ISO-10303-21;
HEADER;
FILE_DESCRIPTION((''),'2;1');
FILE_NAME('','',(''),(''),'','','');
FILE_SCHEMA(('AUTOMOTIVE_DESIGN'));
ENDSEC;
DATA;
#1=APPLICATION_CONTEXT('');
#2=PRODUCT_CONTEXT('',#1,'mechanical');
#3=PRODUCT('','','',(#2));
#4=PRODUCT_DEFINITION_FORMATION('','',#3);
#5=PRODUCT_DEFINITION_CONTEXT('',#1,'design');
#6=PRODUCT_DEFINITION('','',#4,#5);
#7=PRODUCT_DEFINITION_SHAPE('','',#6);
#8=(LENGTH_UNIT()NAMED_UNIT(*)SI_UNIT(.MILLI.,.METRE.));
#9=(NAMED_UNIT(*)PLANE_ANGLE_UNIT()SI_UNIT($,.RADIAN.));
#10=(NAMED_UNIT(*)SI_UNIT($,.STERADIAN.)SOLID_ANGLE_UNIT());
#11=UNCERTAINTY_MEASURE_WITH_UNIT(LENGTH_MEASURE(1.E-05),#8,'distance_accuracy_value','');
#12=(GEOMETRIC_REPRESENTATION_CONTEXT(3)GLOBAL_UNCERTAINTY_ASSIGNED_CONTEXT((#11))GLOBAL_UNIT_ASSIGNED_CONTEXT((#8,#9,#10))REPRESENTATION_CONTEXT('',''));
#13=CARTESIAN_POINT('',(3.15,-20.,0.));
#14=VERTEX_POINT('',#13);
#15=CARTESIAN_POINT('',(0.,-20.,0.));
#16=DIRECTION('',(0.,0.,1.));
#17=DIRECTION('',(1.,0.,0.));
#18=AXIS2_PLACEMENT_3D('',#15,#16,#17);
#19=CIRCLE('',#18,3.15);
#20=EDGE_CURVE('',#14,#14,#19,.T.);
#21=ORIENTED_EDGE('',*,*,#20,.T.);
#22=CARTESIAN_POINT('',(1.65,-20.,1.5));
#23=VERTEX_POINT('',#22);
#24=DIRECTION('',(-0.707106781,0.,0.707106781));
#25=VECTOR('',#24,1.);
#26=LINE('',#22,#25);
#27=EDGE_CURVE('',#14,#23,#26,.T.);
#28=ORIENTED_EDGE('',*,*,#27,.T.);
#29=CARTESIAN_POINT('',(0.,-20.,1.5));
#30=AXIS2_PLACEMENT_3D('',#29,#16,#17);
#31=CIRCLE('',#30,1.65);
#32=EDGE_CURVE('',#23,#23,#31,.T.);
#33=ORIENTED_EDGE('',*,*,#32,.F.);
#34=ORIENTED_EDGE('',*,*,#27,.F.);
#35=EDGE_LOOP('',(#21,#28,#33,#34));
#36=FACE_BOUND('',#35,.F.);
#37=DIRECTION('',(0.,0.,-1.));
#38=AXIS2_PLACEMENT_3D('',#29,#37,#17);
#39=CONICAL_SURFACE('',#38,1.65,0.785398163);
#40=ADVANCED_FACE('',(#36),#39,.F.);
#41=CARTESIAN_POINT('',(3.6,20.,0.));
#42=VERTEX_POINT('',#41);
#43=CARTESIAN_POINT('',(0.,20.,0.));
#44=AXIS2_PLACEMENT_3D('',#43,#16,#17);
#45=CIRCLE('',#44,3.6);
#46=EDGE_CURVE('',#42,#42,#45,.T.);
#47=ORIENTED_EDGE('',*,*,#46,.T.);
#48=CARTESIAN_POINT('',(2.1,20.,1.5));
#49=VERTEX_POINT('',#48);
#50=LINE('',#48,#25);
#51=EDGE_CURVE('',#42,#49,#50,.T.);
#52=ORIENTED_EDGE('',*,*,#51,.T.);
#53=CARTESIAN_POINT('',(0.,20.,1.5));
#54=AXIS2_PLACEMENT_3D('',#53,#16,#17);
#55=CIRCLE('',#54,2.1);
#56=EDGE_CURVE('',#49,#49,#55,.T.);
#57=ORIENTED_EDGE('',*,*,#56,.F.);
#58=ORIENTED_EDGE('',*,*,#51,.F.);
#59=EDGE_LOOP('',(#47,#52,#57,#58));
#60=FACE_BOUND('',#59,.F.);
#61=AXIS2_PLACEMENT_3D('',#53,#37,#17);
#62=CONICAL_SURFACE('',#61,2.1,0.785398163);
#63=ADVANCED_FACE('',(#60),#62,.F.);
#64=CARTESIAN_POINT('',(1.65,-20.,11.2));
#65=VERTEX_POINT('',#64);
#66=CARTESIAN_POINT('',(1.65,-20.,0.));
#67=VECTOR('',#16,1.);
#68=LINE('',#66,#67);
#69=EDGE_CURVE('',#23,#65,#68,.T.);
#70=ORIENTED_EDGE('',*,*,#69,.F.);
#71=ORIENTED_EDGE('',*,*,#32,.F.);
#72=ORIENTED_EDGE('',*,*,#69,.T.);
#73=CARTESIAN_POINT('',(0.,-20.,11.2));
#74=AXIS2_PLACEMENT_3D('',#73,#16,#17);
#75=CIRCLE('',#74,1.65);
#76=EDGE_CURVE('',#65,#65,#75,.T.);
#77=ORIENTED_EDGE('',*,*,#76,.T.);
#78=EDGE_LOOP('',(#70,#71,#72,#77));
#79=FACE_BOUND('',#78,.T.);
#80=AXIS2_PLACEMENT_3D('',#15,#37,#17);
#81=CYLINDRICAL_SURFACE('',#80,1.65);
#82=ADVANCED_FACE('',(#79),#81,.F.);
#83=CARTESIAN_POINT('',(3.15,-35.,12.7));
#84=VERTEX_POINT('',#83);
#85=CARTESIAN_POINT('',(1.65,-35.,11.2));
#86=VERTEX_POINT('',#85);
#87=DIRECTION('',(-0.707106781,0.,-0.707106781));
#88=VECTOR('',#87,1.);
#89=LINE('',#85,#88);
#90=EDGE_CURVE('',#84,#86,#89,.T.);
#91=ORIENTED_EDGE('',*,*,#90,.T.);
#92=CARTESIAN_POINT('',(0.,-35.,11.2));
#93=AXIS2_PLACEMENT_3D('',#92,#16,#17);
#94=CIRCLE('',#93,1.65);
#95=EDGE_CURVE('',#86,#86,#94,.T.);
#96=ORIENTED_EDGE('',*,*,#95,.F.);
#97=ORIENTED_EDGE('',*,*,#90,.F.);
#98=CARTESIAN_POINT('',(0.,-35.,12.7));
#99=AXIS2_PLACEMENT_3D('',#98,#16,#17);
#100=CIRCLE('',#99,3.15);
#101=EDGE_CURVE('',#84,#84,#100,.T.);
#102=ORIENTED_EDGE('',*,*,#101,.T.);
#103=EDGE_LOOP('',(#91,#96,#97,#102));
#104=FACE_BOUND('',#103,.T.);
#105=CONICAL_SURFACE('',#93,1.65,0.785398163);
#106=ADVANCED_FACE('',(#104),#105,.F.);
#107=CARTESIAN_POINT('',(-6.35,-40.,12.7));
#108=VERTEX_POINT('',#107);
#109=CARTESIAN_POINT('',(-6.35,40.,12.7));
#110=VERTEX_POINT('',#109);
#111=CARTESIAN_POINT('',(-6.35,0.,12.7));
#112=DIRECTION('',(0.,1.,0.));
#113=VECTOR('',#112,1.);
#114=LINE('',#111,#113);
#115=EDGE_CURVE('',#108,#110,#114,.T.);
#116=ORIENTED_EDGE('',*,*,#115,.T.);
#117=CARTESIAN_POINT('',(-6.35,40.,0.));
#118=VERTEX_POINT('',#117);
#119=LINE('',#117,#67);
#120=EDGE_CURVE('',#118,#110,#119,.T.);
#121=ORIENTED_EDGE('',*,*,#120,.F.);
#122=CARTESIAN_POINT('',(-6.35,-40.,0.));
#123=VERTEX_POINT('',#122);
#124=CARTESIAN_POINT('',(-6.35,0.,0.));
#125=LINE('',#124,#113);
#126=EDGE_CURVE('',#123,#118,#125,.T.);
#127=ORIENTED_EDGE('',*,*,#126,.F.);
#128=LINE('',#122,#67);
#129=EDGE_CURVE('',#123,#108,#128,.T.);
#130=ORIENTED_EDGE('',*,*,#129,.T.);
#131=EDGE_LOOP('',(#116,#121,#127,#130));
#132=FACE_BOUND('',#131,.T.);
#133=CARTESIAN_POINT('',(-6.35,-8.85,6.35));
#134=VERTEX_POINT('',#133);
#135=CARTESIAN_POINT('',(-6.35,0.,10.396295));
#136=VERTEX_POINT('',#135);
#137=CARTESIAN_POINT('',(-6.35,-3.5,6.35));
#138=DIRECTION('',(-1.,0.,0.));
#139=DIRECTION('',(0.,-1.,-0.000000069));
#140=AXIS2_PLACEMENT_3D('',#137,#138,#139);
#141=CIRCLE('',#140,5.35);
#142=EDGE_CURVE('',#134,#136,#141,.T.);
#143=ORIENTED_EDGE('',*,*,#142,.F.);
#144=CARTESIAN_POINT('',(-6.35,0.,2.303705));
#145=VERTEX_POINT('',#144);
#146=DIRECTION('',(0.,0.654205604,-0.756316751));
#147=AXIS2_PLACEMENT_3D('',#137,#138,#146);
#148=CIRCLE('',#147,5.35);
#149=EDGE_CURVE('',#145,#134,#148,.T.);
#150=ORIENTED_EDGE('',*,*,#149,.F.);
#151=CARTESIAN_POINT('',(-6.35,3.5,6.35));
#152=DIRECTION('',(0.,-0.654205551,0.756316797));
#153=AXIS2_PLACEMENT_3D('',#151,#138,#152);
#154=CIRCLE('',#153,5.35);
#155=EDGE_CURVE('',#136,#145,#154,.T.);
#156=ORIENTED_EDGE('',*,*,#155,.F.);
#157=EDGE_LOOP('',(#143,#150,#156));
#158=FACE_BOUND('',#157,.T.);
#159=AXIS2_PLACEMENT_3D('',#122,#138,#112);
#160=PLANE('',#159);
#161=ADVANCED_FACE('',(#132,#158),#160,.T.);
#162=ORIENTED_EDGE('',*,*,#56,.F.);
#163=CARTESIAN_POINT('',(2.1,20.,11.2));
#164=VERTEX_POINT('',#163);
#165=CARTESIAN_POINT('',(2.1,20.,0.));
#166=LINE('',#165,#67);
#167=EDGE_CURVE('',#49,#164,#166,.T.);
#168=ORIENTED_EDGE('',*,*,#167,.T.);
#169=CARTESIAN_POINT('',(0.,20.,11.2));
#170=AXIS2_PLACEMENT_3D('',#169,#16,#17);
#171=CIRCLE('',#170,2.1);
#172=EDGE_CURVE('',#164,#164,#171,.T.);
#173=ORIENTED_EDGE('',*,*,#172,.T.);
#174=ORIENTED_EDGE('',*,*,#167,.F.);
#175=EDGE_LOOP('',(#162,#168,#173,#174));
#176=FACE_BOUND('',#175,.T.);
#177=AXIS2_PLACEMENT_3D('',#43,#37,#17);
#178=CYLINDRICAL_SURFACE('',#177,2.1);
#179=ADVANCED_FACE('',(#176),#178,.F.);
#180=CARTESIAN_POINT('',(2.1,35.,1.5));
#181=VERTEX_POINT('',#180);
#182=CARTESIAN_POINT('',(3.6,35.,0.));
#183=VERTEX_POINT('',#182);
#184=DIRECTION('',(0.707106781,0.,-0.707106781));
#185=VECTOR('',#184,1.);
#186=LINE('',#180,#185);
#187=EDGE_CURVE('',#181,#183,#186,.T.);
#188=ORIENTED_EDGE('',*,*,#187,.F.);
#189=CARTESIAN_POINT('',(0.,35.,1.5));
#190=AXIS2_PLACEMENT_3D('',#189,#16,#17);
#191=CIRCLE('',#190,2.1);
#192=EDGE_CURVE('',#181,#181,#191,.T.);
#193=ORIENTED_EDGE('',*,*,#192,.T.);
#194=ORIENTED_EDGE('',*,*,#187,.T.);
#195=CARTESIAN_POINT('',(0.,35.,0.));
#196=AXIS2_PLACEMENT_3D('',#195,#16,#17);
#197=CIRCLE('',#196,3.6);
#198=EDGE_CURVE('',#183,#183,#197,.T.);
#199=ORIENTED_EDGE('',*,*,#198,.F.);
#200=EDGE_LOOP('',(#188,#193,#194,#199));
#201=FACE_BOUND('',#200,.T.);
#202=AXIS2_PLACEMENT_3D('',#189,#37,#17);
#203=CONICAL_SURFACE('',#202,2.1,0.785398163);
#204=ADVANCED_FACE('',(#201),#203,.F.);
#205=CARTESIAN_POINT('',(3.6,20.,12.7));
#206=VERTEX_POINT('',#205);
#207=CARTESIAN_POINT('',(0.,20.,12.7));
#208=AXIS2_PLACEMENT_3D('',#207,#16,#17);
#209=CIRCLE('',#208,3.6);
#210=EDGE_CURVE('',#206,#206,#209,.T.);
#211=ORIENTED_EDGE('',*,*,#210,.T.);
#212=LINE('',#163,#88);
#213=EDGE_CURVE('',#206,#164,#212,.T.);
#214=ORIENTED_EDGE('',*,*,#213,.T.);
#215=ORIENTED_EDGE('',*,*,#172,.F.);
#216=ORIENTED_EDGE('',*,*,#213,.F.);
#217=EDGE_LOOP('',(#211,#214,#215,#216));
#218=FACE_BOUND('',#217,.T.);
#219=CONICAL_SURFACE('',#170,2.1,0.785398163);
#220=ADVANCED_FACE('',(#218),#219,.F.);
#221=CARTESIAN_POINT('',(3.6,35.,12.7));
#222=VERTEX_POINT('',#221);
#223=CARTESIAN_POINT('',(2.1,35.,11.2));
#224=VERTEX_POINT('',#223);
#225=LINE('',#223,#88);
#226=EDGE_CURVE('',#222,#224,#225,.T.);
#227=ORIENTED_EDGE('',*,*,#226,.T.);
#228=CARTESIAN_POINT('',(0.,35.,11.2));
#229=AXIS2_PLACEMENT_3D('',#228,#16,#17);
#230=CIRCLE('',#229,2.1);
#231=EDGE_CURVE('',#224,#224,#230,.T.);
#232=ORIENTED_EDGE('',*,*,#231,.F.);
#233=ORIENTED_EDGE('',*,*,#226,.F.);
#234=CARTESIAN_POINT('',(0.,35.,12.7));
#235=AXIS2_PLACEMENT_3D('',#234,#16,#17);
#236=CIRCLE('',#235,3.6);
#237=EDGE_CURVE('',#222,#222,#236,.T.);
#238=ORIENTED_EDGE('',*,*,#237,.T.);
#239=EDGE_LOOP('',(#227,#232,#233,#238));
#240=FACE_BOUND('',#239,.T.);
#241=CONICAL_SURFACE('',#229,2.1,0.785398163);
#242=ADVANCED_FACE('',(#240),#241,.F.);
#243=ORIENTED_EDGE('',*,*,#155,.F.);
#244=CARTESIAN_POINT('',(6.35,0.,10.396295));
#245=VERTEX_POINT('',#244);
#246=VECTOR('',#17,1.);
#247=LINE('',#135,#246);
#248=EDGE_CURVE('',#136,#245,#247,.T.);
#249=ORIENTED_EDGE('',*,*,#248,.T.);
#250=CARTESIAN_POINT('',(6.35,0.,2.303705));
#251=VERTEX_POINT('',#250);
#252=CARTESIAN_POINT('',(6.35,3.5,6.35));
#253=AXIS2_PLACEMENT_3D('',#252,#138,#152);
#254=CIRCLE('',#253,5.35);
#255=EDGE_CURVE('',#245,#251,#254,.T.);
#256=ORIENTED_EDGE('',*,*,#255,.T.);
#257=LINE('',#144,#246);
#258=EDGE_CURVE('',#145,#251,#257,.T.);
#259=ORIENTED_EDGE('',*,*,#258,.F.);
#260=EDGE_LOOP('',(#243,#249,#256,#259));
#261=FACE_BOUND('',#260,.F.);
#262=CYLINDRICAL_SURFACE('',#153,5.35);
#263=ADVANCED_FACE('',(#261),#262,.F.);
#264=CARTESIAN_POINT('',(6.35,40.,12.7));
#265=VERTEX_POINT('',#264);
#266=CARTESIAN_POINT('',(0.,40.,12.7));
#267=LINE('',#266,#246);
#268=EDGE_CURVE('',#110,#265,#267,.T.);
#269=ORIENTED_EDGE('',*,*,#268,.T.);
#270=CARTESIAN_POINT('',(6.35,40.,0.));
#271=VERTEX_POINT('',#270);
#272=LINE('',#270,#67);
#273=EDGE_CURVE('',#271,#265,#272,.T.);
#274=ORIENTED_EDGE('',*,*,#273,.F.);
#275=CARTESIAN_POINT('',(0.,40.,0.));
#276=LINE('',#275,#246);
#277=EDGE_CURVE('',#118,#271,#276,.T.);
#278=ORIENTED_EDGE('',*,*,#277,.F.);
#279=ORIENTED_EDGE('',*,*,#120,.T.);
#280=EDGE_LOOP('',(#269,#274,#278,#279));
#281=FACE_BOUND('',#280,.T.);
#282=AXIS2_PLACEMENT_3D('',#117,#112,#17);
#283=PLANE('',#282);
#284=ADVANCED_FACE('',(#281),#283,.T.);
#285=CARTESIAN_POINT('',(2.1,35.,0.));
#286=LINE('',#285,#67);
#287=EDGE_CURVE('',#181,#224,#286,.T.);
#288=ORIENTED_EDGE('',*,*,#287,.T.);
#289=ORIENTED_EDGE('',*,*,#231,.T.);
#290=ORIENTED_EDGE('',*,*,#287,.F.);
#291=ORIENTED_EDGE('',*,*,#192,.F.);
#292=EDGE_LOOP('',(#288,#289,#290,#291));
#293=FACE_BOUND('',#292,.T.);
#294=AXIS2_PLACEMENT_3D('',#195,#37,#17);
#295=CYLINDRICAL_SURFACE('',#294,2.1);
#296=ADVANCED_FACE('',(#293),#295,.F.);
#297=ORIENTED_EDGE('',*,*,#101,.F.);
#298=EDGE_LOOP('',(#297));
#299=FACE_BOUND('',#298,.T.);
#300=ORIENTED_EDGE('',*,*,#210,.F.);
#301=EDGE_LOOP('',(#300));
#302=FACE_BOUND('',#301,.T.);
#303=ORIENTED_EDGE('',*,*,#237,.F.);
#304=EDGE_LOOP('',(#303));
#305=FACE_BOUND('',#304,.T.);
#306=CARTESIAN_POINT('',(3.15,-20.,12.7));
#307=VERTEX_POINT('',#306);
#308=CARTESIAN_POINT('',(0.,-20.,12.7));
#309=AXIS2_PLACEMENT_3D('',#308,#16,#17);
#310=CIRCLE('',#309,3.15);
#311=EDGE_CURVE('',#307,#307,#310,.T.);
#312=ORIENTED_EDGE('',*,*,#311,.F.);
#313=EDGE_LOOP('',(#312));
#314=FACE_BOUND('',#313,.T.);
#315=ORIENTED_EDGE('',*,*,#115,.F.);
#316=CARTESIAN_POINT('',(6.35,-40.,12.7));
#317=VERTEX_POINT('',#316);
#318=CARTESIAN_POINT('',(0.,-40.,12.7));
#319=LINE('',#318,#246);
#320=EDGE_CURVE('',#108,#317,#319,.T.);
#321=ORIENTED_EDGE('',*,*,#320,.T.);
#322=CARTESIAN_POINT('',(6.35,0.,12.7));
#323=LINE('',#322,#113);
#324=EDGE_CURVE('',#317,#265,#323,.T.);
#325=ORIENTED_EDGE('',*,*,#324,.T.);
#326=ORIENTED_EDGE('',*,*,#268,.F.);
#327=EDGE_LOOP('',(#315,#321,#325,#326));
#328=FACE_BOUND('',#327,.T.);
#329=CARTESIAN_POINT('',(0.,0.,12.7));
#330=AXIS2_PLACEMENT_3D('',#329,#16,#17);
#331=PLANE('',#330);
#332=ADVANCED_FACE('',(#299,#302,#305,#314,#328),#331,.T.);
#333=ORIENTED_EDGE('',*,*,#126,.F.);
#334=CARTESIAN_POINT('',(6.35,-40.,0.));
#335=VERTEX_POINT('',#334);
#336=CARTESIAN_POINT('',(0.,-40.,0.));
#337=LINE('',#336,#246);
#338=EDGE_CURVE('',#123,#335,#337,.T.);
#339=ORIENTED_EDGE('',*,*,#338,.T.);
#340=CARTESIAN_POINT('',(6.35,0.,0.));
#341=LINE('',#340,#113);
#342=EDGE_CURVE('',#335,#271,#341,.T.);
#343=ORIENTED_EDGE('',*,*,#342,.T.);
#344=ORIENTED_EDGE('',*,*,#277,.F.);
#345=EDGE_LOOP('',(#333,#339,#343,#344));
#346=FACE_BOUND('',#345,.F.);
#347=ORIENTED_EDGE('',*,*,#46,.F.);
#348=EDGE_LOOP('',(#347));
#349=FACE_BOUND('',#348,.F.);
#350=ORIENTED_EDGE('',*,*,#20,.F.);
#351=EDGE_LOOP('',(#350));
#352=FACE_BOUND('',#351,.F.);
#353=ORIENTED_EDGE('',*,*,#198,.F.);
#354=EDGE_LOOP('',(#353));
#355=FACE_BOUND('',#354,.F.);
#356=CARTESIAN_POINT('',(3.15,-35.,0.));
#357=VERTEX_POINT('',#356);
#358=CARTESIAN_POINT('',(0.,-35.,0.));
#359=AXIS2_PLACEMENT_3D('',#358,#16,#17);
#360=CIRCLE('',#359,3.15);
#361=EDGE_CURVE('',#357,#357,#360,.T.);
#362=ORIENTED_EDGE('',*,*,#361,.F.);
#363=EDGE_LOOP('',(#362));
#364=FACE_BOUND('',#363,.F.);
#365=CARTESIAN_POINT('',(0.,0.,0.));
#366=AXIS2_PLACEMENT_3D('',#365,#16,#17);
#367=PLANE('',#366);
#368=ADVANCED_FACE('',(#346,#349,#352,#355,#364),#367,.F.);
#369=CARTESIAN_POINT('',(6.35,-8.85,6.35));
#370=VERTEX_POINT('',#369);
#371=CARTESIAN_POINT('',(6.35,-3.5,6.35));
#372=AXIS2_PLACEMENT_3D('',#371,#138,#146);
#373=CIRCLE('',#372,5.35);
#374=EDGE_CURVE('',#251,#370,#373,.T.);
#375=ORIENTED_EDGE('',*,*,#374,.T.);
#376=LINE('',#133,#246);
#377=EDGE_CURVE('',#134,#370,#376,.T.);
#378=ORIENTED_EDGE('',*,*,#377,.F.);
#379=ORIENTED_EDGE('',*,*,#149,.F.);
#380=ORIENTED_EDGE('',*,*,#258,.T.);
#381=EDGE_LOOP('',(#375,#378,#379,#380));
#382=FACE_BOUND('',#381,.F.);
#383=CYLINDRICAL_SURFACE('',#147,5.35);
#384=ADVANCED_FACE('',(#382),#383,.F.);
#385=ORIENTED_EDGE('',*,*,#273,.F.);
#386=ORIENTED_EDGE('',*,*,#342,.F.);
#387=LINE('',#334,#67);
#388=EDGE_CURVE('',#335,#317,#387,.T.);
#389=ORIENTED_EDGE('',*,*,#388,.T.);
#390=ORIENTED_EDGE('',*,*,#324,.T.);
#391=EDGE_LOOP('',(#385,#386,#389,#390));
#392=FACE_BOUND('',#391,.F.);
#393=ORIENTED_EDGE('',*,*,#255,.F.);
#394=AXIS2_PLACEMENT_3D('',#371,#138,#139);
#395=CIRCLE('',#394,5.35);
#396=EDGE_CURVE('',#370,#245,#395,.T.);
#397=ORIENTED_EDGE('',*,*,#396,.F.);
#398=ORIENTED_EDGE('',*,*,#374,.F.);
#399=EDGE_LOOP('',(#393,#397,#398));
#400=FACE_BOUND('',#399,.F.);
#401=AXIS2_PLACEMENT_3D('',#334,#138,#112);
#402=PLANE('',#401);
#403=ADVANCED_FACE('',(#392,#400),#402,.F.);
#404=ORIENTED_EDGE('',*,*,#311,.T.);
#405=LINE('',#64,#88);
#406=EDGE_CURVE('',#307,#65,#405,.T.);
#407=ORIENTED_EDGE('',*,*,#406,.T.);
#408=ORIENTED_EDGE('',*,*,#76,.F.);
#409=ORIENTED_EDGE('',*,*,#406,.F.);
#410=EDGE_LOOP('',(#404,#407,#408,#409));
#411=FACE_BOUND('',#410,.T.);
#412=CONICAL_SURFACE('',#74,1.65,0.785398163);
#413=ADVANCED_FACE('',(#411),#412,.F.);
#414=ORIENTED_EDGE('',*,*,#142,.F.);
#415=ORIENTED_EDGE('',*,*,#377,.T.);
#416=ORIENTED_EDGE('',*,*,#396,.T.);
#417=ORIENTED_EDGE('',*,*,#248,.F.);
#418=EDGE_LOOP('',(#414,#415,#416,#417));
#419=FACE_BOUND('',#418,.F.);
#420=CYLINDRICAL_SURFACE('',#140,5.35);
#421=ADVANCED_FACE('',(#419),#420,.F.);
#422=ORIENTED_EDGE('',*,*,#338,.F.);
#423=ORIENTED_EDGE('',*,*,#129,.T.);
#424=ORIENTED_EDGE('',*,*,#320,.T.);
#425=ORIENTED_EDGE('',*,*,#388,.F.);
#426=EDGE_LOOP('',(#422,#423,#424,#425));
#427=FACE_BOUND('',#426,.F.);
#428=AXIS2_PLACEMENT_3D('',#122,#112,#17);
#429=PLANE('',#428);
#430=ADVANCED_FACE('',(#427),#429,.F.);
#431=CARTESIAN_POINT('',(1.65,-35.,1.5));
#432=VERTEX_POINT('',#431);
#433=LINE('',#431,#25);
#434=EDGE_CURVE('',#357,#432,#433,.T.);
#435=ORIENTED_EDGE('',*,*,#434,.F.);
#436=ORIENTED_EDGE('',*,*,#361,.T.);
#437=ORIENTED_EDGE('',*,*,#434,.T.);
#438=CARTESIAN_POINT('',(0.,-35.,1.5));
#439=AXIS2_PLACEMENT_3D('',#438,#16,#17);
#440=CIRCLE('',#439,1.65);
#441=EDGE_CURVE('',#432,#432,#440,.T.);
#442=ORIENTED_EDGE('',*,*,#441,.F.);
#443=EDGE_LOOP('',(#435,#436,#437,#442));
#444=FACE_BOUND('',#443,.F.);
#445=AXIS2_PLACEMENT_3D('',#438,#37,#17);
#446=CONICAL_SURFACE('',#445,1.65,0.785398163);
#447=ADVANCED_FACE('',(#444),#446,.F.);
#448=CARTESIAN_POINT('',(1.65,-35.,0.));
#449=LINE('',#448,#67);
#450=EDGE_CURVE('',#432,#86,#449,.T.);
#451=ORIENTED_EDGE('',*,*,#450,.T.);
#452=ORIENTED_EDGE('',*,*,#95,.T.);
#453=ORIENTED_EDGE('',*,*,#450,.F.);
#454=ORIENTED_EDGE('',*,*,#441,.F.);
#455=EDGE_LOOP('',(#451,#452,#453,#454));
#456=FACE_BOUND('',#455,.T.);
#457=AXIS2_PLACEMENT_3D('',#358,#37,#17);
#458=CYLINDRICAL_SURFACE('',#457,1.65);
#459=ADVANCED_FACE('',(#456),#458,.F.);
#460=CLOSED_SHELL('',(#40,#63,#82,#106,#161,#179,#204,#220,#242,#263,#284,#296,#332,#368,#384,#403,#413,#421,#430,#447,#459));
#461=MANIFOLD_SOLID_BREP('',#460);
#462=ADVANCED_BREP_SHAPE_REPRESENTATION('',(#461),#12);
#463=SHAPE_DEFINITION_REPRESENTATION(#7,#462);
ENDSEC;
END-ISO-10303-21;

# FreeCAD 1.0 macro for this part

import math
import FreeCAD as App
import Part
import Sketcher

V = App.Vector
Q = App.Units.Quantity


def edges_at(feature, points):
    """Names of the edges that pass closest to the given points."""
    edges = feature.Shape.Edges
    near = lambda p: min(range(len(edges)), key=lambda i: edges[i].distToShape(Part.Vertex(*p))[0])
    return sorted({f"Edge{near(p) + 1}" for p in points})


def add_polygon(sketch, points):
    """Adds a closed chain of lines whose ends are joined by coincident constraints."""
    first, n = sketch.GeometryCount, len(points)
    for a, b in zip(points, points[1:] + points[:1]):
        sketch.addGeometry(Part.LineSegment(App.Vector(*a, 0), App.Vector(*b, 0)), False)
    for i in range(n):
        sketch.addConstraint(Sketcher.Constraint("Coincident", first + i, 2, first + (i + 1) % n, 1))

doc = App.newDocument("Part")
body = doc.addObject("PartDesign::Body", "Body")

# Sketch on XY plane
sketch1 = doc.addObject("Sketcher::SketchObject", "Sketch")
body.addObject(sketch1)
sketch1.AttachmentSupport = (doc.XY_Plane, [""])
sketch1.MapMode = "FlatFace"
add_polygon(sketch1, [(-6.3, 40), (-6.3, -40), (6.3, -40), (6.3, 40)])  # lines 0-3
sketch1.addGeometry(Part.Circle(V(0, -35, 0), V(0, 0, 1), 1.6), False)  # 4
sketch1.addGeometry(Part.Circle(V(0, -20, 0), V(0, 0, 1), 1.6), False)  # 5
sketch1.addGeometry(Part.Circle(V(0, 20, 0), V(0, 0, 1), 2.1), False)  # 6
sketch1.addGeometry(Part.Circle(V(0, 35, 0), V(0, 0, 1), 2.1), False)  # 7
sketch1.addConstraint(Sketcher.Constraint("Vertical", 0))
sketch1.addConstraint(Sketcher.Constraint("Horizontal", 1))
sketch1.addConstraint(Sketcher.Constraint("Vertical", 2))
sketch1.addConstraint(Sketcher.Constraint("Horizontal", 3))
sketch1.addConstraint(Sketcher.Constraint("Equal", 4, 5))
sketch1.addConstraint(Sketcher.Constraint("Equal", 6, 7))
sketch1.addConstraint(Sketcher.Constraint("Symmetric", 5, 3, 6, 3, -1, 1))
sketch1.addConstraint(Sketcher.Constraint("Symmetric", 4, 3, 7, 3, -1, 1))
sketch1.addConstraint(Sketcher.Constraint("Symmetric", 0, 2, 2, 2, -1, 1))
sketch1.addConstraint(Sketcher.Constraint("PointOnObject", 4, 3, -2))
sketch1.addConstraint(Sketcher.Constraint("PointOnObject", 5, 3, -2))
sketch1.addConstraint(Sketcher.Constraint("Diameter", 4, Q("3.3 mm")))
sketch1.addConstraint(Sketcher.Constraint("Diameter", 6, Q("4.2 mm")))
sketch1.addConstraint(Sketcher.Constraint("DistanceY", 0, 2, 0, 1, Q("80 mm")))
sketch1.addConstraint(Sketcher.Constraint("DistanceX", 1, 1, 1, 2, Q("12.7 mm")))
sketch1.addConstraint(Sketcher.Constraint("DistanceY", 4, 3, -1, 1, Q("35 mm")))
sketch1.addConstraint(Sketcher.Constraint("DistanceY", 5, 3, -1, 1, Q("20 mm")))
pad1 = doc.addObject("PartDesign::Pad", "Pad")
body.addObject(pad1)
pad1.Profile = sketch1
pad1.Length = 12.7

# Sketch on YZ plane
sketch2 = doc.addObject("Sketcher::SketchObject", "Sketch001")
body.addObject(sketch2)
sketch2.AttachmentSupport = (doc.YZ_Plane, [""])
sketch2.MapMode = "FlatFace"
sketch2.AttachmentOffset = App.Placement(V(0, 0, -6.35), App.Rotation())
sketch2.addGeometry(Part.ArcOfCircle(Part.Circle(V(3, 6, 0), V(0, 0, 1), 5), math.radians(-131), math.radians(131)), False)
sketch2.addGeometry(Part.ArcOfCircle(Part.Circle(V(-3, 6, 0), V(0, 0, 1), 5), math.radians(180), math.radians(311)), False)
sketch2.addGeometry(Part.ArcOfCircle(Part.Circle(V(-3, 6, 0), V(0, 0, 1), 5), math.radians(49), math.radians(180)), False)
sketch2.addConstraint(Sketcher.Constraint("Coincident", 0, 1, 1, 2))
sketch2.addConstraint(Sketcher.Constraint("Tangent", 1, 1, 2, 2))
sketch2.addConstraint(Sketcher.Constraint("Coincident", 2, 1, 0, 2))
sketch2.addConstraint(Sketcher.Constraint("Equal", 0, 1))
sketch2.addConstraint(Sketcher.Constraint("Equal", 1, 2))
sketch2.addConstraint(Sketcher.Constraint("Symmetric", 0, 3, 1, 3, -2))
sketch2.addConstraint(Sketcher.Constraint("Horizontal", 2, 3, 1, 1))
sketch2.addConstraint(Sketcher.Constraint("Radius", 0, Q("5.35 mm")))
sketch2.addConstraint(Sketcher.Constraint("DistanceX", 1, 3, 0, 3, Q("7 mm")))
sketch2.addConstraint(Sketcher.Constraint("DistanceY", -1, 1, 0, 3, Q("6.35 mm")))
pocket1 = doc.addObject("PartDesign::Pocket", "Pocket")
body.addObject(pocket1)
pocket1.Profile = sketch2
pocket1.Type = "ThroughAll"
pocket1.Reversed = True
doc.recompute()

chamfer = doc.addObject("PartDesign::Chamfer", "Chamfer")
body.addObject(chamfer)
chamfer.Base = (pocket1, edges_at(pocket1, [
    (-2.1, 35, 12.7),
    (-2.1, 20, 12.7),
    (-1.65, -20, 12.7),
    (-1.65, -35, 12.7),
]))
chamfer.Size = 1.5
doc.recompute()

chamfer2 = doc.addObject("PartDesign::Chamfer", "Chamfer001")
body.addObject(chamfer2)
chamfer2.Base = (chamfer, edges_at(chamfer, [
    (-2.1, 35, 0),
    (-2.1, 20, 0),
    (-1.65, -20, 0),
    (-1.65, -35, 0),
]))
chamfer2.Size = 1.5

doc.recompute()
